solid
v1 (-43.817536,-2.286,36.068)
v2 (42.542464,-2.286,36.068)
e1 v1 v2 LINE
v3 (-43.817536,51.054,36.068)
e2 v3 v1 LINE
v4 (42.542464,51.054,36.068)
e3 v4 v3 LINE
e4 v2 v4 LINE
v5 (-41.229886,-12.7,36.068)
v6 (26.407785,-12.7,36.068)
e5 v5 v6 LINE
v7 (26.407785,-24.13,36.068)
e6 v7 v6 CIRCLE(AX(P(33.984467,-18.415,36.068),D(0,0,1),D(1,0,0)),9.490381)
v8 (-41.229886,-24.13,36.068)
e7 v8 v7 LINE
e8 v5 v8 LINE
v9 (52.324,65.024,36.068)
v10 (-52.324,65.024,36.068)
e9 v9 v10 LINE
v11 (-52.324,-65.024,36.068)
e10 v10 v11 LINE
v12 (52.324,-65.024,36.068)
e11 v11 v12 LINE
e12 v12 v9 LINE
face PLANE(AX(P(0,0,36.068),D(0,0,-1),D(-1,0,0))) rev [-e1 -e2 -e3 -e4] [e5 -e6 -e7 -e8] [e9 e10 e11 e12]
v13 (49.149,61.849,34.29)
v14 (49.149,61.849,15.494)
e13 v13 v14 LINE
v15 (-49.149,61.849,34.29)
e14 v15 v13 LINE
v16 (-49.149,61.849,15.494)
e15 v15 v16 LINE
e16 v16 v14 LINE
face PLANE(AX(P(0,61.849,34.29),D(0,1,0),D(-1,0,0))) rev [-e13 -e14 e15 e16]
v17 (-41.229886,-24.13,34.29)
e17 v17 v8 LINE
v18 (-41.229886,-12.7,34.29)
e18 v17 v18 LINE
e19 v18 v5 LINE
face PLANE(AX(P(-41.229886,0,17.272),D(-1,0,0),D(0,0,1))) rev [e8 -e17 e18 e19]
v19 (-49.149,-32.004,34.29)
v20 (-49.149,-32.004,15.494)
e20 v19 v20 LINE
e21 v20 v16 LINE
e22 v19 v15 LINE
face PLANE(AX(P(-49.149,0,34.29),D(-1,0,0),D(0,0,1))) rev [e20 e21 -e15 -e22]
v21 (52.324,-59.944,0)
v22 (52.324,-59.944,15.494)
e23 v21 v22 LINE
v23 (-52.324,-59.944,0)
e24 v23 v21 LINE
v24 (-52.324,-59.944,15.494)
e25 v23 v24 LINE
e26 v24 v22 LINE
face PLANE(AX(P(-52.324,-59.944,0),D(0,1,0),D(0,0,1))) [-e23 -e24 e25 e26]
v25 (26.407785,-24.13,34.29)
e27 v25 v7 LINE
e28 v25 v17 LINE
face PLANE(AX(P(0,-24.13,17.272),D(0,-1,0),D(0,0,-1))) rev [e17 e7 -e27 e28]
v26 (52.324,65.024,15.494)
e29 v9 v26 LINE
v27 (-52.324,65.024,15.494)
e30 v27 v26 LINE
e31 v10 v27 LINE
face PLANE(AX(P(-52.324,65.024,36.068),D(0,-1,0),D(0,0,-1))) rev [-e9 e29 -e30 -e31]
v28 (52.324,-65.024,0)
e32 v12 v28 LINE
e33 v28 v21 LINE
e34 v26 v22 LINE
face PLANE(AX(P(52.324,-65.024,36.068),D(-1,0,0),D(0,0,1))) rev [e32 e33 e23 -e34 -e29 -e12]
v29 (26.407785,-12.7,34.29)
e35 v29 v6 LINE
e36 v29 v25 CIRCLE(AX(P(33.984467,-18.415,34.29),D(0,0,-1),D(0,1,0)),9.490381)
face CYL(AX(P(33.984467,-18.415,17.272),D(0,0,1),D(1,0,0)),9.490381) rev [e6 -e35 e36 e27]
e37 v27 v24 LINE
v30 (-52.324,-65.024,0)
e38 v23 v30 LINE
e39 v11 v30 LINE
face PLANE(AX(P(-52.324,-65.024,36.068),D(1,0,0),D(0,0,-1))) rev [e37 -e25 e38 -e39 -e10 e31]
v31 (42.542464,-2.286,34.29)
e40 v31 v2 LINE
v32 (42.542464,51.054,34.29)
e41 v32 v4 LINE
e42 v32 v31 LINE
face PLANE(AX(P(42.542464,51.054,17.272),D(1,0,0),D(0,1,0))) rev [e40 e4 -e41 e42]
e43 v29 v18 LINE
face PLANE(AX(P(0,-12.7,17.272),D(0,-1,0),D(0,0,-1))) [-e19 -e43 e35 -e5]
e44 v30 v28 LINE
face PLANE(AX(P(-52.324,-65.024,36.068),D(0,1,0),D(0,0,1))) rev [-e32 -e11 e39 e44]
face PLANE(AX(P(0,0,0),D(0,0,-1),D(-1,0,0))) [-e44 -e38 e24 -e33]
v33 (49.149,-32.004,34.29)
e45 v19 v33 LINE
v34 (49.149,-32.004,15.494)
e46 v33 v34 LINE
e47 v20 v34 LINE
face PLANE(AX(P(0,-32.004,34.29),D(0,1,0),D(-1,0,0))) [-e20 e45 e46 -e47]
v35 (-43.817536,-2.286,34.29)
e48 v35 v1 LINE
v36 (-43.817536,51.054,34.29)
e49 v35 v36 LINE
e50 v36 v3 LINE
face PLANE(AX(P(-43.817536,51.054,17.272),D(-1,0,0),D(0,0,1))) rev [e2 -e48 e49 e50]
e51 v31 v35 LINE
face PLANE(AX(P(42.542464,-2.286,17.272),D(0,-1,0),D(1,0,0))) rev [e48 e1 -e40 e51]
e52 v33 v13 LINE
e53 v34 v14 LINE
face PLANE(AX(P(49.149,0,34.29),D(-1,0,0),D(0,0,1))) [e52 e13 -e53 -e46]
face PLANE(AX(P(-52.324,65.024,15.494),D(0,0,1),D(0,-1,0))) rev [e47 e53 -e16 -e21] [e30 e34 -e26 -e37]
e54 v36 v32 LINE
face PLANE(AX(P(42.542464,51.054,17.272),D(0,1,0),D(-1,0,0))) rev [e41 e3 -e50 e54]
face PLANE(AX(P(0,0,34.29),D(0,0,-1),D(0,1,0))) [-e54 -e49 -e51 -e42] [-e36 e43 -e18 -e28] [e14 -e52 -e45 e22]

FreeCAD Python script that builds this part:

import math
import FreeCAD as App
import Part
import Sketcher
from FreeCAD import Vector
Q = App.Units.Quantity

doc = App.newDocument("Part")
body = doc.addObject("PartDesign::Body", "Body")

# Sketch on XY plane
sketch1 = body.newObject("Sketcher::SketchObject", "Sketch")
sketch1.AttachmentSupport = (doc.getObject("XY_Plane"), [""])
sketch1.MapMode = "FlatFace"
sketch1.addGeometry([
    Part.LineSegment(Vector(-52, 65, 0), Vector(-52, -65, 0)),
    Part.LineSegment(Vector(-52, -65, 0), Vector(52, -65, 0)),
    Part.LineSegment(Vector(52, -65, 0), Vector(52, 65, 0)),
    Part.LineSegment(Vector(52, 65, 0), Vector(-52, 65, 0)),
], False)
sketch1.addConstraint([
    Sketcher.Constraint("Coincident", 0, 2, 1, 1),
    Sketcher.Constraint("Coincident", 1, 2, 2, 1),
    Sketcher.Constraint("Coincident", 2, 2, 3, 1),
    Sketcher.Constraint("Coincident", 3, 2, 0, 1),
    Sketcher.Constraint("Vertical", 0),
    Sketcher.Constraint("Horizontal", 1),
    Sketcher.Constraint("Vertical", 2),
    Sketcher.Constraint("Horizontal", 3),
    Sketcher.Constraint("Symmetric", 0, 2, 2, 2, -1, 1),
    Sketcher.Constraint("DistanceX", 1, 1, 1, 2, Q("4.12 in")),
    Sketcher.Constraint("DistanceY", 0, 2, 0, 1, Q("5.12 in")),
])
pad1 = body.newObject("PartDesign::Pad", "Pad")
pad1.Profile = sketch1
pad1.Length = Q("1.42 in")

# Sketch on YZ plane
sketch2 = body.newObject("Sketcher::SketchObject", "Sketch001")
sketch2.AttachmentSupport = (doc.getObject("YZ_Plane"), [""])
sketch2.MapMode = "FlatFace"
sketch2.AttachmentOffset = App.Placement(Vector(0, 0, 2.06 * 25.4), App.Rotation())
sketch2.addGeometry([
    Part.LineSegment(Vector(65, 15, 0), Vector(-60, 15, 0)),
    Part.LineSegment(Vector(-60, 15, 0), Vector(-60, 0, 0)),
    Part.LineSegment(Vector(-60, 0, 0), Vector(65, 0, 0)),
    Part.LineSegment(Vector(65, 0, 0), Vector(65, 15, 0)),
], False)
sketch2.addConstraint([
    Sketcher.Constraint("Coincident", 0, 2, 1, 1),
    Sketcher.Constraint("Coincident", 1, 2, 2, 1),
    Sketcher.Constraint("Coincident", 2, 2, 3, 1),
    Sketcher.Constraint("Coincident", 3, 2, 0, 1),
    Sketcher.Constraint("Horizontal", 0),
    Sketcher.Constraint("Vertical", 1),
    Sketcher.Constraint("Horizontal", 2),
    Sketcher.Constraint("Vertical", 3),
    Sketcher.Constraint("PointOnObject", 1, 2, -1),
    Sketcher.Constraint("DistanceX", 0, 2, 0, 1, Q("4.92 in")),
    Sketcher.Constraint("DistanceY", 1, 2, 1, 1, Q("0.61 in")),
    Sketcher.Constraint("DistanceX", 0, 2, -1, 1, Q("2.36 in")),
])
pocket1 = body.newObject("PartDesign::Pocket", "Pocket")
pocket1.Profile = sketch2
pocket1.Type = "ThroughAll"

# Sketch on XY plane
sketch3 = body.newObject("Sketcher::SketchObject", "Sketch002")
sketch3.AttachmentSupport = (doc.getObject("XY_Plane"), [""])
sketch3.MapMode = "FlatFace"
sketch3.AttachmentOffset = App.Placement(Vector(0, 0, 0.61 * 25.4), App.Rotation())
sketch3.addGeometry([
    Part.LineSegment(Vector(49, 62, 0), Vector(49, -32, 0)),
    Part.LineSegment(Vector(49, -32, 0), Vector(-49, -32, 0)),
    Part.LineSegment(Vector(-49, -32, 0), Vector(-49, 62, 0)),
    Part.LineSegment(Vector(-49, 62, 0), Vector(49, 62, 0)),
], False)
sketch3.addConstraint([
    Sketcher.Constraint("Coincident", 0, 2, 1, 1),
    Sketcher.Constraint("Coincident", 1, 2, 2, 1),
    Sketcher.Constraint("Coincident", 2, 2, 3, 1),
    Sketcher.Constraint("Coincident", 3, 2, 0, 1),
    Sketcher.Constraint("Vertical", 0),
    Sketcher.Constraint("Horizontal", 1),
    Sketcher.Constraint("Vertical", 2),
    Sketcher.Constraint("Horizontal", 3),
    Sketcher.Constraint("DistanceX", 1, 2, 1, 1, Q("3.87 in")),
    Sketcher.Constraint("DistanceY", 0, 2, 0, 1, Q("3.695 in")),
    Sketcher.Constraint("DistanceY", 0, 2, -1, 1, Q("1.26 in")),
    Sketcher.Constraint("DistanceX", -1, 1, 0, 2, Q("1.935 in")),
])
pocket2 = body.newObject("PartDesign::Pocket", "Pocket001")
pocket2.Profile = sketch3
pocket2.Length = Q("0.74 in")
pocket2.Reversed = True

# Sketch on XY plane
sketch4 = body.newObject("Sketcher::SketchObject", "Sketch003")
sketch4.AttachmentSupport = (doc.getObject("XY_Plane"), [""])
sketch4.MapMode = "FlatFace"
sketch4.AttachmentOffset = App.Placement(Vector(0, 0, 1.42 * 25.4), App.Rotation())
sketch4.addGeometry([
    Part.LineSegment(Vector(-44, 51, 0), Vector(-44, -2, 0)),
    Part.LineSegment(Vector(-44, -2, 0), Vector(43, -2, 0)),
    Part.LineSegment(Vector(43, -2, 0), Vector(43, 51, 0)),
    Part.LineSegment(Vector(43, 51, 0), Vector(-44, 51, 0)),
], False)
sketch4.addConstraint([
    Sketcher.Constraint("Coincident", 0, 2, 1, 1),
    Sketcher.Constraint("Coincident", 1, 2, 2, 1),
    Sketcher.Constraint("Coincident", 2, 2, 3, 1),
    Sketcher.Constraint("Coincident", 3, 2, 0, 1),
    Sketcher.Constraint("Vertical", 0),
    Sketcher.Constraint("Horizontal", 1),
    Sketcher.Constraint("Vertical", 2),
    Sketcher.Constraint("Horizontal", 3),
    Sketcher.Constraint("DistanceX", 1, 1, 1, 2, Q("3.4 in")),
    Sketcher.Constraint("DistanceY", 0, 2, 0, 1, Q("2.1 in")),
    Sketcher.Constraint("DistanceY", 0, 2, -1, 1, Q("0.09 in")),
    Sketcher.Constraint("DistanceX", 0, 2, -1, 1, Q("1.7250999 in")),
])
pocket3 = body.newObject("PartDesign::Pocket", "Pocket002")
pocket3.Profile = sketch4
pocket3.Length = Q("0.74 in")

# Sketch on XY plane
sketch5 = body.newObject("Sketcher::SketchObject", "Sketch004")
sketch5.AttachmentSupport = (doc.getObject("XY_Plane"), [""])
sketch5.MapMode = "FlatFace"
sketch5.AttachmentOffset = App.Placement(Vector(0, 0, 1.42 * 25.4), App.Rotation())
sketch5.addGeometry([
    Part.ArcOfCircle(Part.Circle(Vector(34, -18, 0), Vector(0, 0, 1), 9), math.radians(0), math.radians(143)),  # 0
    Part.LineSegment(Vector(26, -13, 0), Vector(-41, -13, 0)),  # 1
    Part.LineSegment(Vector(-41, -13, 0), Vector(-41, -24, 0)),  # 2
    Part.LineSegment(Vector(-41, -24, 0), Vector(26, -24, 0)),  # 3
    Part.ArcOfCircle(Part.Circle(Vector(34, -18, 0), Vector(0, 0, 1), 9), math.radians(-143), math.radians(0)),  # 4
], False)
sketch5.addConstraint([
    Sketcher.Constraint("Coincident", 0, 2, 1, 1),
    Sketcher.Constraint("Coincident", 1, 2, 2, 1),
    Sketcher.Constraint("Coincident", 2, 2, 3, 1),
    Sketcher.Constraint("Coincident", 3, 2, 4, 1),
    Sketcher.Constraint("Tangent", 4, 2, 0, 1),
    Sketcher.Constraint("Horizontal", 1),
    Sketcher.Constraint("Vertical", 2),
    Sketcher.Constraint("Horizontal", 3),
    Sketcher.Constraint("Equal", 0, 4),
    Sketcher.Constraint("Horizontal", 0, 3, 4, 2),
    Sketcher.Constraint("Vertical", 0, 2, 3, 2),
    Sketcher.Constraint("DistanceY", 2, 2, 2, 1, Q("0.45 in")),
    Sketcher.Constraint("DistanceY", 0, 2, -1, 1, Q("0.5 in")),
    Sketcher.Constraint("Radius", 0, 9.490381),
    Sketcher.Constraint("DistanceX", 1, 2, 1, 1, 67.637672),
    Sketcher.Constraint("DistanceX", -1, 1, 4, 2, 43.474848),
])
pocket4 = body.newObject("PartDesign::Pocket", "Pocket003")
pocket4.Profile = sketch5
pocket4.Length = Q("0.74 in")

doc.recompute()
